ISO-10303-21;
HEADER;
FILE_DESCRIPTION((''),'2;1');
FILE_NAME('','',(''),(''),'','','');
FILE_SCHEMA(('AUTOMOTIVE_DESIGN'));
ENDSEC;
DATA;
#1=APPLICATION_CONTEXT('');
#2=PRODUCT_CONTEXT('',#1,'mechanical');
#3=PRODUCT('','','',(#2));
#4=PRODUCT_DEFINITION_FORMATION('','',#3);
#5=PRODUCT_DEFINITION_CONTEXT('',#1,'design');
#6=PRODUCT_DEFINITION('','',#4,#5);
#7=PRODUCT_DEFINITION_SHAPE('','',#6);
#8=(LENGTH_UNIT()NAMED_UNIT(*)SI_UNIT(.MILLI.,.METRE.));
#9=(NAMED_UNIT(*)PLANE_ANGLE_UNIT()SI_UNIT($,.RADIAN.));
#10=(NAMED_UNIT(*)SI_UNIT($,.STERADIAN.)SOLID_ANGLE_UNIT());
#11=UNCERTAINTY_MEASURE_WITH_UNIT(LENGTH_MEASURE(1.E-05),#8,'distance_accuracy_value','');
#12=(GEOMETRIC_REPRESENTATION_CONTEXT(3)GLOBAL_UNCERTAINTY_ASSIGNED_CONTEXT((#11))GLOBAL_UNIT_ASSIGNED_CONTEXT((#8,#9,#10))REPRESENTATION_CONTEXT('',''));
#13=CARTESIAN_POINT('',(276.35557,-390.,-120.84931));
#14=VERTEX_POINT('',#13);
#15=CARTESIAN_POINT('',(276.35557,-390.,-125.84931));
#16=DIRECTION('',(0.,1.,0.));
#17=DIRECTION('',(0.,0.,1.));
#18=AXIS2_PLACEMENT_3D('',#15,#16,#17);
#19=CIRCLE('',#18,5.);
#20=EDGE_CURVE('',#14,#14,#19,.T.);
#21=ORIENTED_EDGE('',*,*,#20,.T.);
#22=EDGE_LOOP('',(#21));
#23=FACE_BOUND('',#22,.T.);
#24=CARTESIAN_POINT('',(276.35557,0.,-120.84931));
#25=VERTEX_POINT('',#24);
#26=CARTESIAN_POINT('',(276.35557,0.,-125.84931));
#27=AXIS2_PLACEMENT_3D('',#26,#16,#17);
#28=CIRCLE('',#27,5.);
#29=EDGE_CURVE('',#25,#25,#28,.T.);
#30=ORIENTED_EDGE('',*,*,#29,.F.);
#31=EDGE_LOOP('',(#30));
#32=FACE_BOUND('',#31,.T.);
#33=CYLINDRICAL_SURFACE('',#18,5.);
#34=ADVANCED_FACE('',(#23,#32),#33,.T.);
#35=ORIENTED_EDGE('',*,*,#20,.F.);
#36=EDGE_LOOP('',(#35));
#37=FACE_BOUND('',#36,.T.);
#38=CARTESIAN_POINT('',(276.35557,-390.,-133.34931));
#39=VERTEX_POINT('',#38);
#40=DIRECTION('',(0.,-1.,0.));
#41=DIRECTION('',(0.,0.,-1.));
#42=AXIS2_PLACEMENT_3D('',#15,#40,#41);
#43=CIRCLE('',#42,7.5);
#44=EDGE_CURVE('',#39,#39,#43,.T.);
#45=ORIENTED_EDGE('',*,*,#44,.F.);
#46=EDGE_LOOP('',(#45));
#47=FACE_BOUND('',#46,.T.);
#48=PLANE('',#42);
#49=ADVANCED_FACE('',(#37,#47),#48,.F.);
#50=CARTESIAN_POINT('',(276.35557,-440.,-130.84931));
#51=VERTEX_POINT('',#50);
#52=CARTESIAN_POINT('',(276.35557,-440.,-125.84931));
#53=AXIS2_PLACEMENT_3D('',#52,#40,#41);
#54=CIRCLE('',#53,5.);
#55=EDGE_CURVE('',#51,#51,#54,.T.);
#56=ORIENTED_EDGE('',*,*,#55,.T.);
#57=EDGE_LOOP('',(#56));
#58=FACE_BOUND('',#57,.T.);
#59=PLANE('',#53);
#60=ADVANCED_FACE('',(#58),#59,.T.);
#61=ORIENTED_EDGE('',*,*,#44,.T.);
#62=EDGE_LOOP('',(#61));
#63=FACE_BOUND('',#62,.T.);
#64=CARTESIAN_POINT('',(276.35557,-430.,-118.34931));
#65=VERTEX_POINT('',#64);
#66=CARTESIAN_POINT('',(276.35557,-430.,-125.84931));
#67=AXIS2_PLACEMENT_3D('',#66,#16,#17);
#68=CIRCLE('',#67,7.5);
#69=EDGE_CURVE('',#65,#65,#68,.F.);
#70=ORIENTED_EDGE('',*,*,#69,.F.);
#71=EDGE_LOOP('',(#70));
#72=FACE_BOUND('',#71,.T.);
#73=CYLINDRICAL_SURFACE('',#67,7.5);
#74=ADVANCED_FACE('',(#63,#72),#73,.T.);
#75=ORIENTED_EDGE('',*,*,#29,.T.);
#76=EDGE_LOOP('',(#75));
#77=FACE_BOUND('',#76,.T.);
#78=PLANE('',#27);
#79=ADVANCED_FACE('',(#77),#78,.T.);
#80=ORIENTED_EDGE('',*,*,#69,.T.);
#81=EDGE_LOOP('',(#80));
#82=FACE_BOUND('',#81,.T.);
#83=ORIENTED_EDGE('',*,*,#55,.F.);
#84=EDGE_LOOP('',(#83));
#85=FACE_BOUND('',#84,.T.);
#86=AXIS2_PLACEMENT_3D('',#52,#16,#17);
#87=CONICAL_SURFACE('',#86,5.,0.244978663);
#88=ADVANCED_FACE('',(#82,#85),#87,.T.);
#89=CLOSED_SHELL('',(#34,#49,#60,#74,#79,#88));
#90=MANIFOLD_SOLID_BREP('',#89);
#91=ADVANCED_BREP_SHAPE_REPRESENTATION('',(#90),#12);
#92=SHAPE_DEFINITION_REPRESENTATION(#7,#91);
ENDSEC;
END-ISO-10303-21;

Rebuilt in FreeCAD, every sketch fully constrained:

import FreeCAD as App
import Part
import Sketcher

V = App.Vector
Q = App.Units.Quantity

doc = App.newDocument("Part")
body = doc.addObject("PartDesign::Body", "Body")

sketch1 = body.newObject("Sketcher::SketchObject", "Sketch")
sketch1.AttachmentSupport = (doc.getObject("XZ_Plane"), [""])
sketch1.MapMode = "FlatFace"
sketch1.addGeometry(Part.Circle(V(276, -126, 0), V(0, 0, 1), 5), False)
sketch1.addConstraint(Sketcher.Constraint("Diameter", 0, Q("10 mm")))
sketch1.addConstraint(Sketcher.Constraint("DistanceX", -1, 1, 0, 3, Q("276.35557 mm")))
sketch1.addConstraint(Sketcher.Constraint("DistanceY", 0, 3, -1, 1, Q("125.84931 mm")))
pad1 = body.newObject("PartDesign::Pad", "Pad")
pad1.Profile = sketch1
pad1.Length = 390

sketch2 = body.newObject("Sketcher::SketchObject", "Sketch001")
sketch2.AttachmentSupport = (doc.getObject("XZ_Plane"), [""])
sketch2.MapMode = "FlatFace"
sketch2.AttachmentOffset = App.Placement(V(0, 0, 390), App.Rotation())
sketch2.addGeometry(Part.Circle(V(276, -126, 0), V(0, 0, 1), 8), False)
sketch2.addConstraint(Sketcher.Constraint("Diameter", 0, Q("15 mm")))
sketch2.addConstraint(Sketcher.Constraint("DistanceX", -1, 1, 0, 3, Q("276.35557 mm")))
sketch2.addConstraint(Sketcher.Constraint("DistanceY", 0, 3, -1, 1, Q("125.84931 mm")))
pad2 = body.newObject("PartDesign::Pad", "Pad001")
pad2.Profile = sketch2
pad2.Length = 40

sketch3 = body.newObject("Sketcher::SketchObject", "Sketch002")
sketch3.AttachmentSupport = (doc.getObject("XZ_Plane"), [""])
sketch3.MapMode = "FlatFace"
sketch3.AttachmentOffset = App.Placement(V(0, 0, 430), App.Rotation())
sketch3.addGeometry(Part.Circle(V(276, -126, 0), V(0, 0, 1), 8), False)
sketch3.addConstraint(Sketcher.Constraint("Diameter", 0, Q("15 mm")))
sketch3.addConstraint(Sketcher.Constraint("DistanceX", -1, 1, 0, 3, Q("276.35557 mm")))
sketch3.addConstraint(Sketcher.Constraint("DistanceY", 0, 3, -1, 1, Q("125.84931 mm")))

sketch4 = body.newObject("Sketcher::SketchObject", "Sketch003")
sketch4.AttachmentSupport = (doc.getObject("XZ_Plane"), [""])
sketch4.MapMode = "FlatFace"
sketch4.AttachmentOffset = App.Placement(V(0, 0, 440), App.Rotation())
sketch4.addGeometry(Part.Circle(V(276, -126, 0), V(0, 0, 1), 5), False)
sketch4.addConstraint(Sketcher.Constraint("Diameter", 0, Q("10 mm")))
sketch4.addConstraint(Sketcher.Constraint("DistanceX", -1, 1, 0, 3, Q("276.35557 mm")))
sketch4.addConstraint(Sketcher.Constraint("DistanceY", 0, 3, -1, 1, Q("125.84931 mm")))

additiveloft = body.newObject("PartDesign::AdditiveLoft", "AdditiveLoft")
additiveloft.Profile = sketch3
additiveloft.Sections = [sketch4]

doc.recompute()
